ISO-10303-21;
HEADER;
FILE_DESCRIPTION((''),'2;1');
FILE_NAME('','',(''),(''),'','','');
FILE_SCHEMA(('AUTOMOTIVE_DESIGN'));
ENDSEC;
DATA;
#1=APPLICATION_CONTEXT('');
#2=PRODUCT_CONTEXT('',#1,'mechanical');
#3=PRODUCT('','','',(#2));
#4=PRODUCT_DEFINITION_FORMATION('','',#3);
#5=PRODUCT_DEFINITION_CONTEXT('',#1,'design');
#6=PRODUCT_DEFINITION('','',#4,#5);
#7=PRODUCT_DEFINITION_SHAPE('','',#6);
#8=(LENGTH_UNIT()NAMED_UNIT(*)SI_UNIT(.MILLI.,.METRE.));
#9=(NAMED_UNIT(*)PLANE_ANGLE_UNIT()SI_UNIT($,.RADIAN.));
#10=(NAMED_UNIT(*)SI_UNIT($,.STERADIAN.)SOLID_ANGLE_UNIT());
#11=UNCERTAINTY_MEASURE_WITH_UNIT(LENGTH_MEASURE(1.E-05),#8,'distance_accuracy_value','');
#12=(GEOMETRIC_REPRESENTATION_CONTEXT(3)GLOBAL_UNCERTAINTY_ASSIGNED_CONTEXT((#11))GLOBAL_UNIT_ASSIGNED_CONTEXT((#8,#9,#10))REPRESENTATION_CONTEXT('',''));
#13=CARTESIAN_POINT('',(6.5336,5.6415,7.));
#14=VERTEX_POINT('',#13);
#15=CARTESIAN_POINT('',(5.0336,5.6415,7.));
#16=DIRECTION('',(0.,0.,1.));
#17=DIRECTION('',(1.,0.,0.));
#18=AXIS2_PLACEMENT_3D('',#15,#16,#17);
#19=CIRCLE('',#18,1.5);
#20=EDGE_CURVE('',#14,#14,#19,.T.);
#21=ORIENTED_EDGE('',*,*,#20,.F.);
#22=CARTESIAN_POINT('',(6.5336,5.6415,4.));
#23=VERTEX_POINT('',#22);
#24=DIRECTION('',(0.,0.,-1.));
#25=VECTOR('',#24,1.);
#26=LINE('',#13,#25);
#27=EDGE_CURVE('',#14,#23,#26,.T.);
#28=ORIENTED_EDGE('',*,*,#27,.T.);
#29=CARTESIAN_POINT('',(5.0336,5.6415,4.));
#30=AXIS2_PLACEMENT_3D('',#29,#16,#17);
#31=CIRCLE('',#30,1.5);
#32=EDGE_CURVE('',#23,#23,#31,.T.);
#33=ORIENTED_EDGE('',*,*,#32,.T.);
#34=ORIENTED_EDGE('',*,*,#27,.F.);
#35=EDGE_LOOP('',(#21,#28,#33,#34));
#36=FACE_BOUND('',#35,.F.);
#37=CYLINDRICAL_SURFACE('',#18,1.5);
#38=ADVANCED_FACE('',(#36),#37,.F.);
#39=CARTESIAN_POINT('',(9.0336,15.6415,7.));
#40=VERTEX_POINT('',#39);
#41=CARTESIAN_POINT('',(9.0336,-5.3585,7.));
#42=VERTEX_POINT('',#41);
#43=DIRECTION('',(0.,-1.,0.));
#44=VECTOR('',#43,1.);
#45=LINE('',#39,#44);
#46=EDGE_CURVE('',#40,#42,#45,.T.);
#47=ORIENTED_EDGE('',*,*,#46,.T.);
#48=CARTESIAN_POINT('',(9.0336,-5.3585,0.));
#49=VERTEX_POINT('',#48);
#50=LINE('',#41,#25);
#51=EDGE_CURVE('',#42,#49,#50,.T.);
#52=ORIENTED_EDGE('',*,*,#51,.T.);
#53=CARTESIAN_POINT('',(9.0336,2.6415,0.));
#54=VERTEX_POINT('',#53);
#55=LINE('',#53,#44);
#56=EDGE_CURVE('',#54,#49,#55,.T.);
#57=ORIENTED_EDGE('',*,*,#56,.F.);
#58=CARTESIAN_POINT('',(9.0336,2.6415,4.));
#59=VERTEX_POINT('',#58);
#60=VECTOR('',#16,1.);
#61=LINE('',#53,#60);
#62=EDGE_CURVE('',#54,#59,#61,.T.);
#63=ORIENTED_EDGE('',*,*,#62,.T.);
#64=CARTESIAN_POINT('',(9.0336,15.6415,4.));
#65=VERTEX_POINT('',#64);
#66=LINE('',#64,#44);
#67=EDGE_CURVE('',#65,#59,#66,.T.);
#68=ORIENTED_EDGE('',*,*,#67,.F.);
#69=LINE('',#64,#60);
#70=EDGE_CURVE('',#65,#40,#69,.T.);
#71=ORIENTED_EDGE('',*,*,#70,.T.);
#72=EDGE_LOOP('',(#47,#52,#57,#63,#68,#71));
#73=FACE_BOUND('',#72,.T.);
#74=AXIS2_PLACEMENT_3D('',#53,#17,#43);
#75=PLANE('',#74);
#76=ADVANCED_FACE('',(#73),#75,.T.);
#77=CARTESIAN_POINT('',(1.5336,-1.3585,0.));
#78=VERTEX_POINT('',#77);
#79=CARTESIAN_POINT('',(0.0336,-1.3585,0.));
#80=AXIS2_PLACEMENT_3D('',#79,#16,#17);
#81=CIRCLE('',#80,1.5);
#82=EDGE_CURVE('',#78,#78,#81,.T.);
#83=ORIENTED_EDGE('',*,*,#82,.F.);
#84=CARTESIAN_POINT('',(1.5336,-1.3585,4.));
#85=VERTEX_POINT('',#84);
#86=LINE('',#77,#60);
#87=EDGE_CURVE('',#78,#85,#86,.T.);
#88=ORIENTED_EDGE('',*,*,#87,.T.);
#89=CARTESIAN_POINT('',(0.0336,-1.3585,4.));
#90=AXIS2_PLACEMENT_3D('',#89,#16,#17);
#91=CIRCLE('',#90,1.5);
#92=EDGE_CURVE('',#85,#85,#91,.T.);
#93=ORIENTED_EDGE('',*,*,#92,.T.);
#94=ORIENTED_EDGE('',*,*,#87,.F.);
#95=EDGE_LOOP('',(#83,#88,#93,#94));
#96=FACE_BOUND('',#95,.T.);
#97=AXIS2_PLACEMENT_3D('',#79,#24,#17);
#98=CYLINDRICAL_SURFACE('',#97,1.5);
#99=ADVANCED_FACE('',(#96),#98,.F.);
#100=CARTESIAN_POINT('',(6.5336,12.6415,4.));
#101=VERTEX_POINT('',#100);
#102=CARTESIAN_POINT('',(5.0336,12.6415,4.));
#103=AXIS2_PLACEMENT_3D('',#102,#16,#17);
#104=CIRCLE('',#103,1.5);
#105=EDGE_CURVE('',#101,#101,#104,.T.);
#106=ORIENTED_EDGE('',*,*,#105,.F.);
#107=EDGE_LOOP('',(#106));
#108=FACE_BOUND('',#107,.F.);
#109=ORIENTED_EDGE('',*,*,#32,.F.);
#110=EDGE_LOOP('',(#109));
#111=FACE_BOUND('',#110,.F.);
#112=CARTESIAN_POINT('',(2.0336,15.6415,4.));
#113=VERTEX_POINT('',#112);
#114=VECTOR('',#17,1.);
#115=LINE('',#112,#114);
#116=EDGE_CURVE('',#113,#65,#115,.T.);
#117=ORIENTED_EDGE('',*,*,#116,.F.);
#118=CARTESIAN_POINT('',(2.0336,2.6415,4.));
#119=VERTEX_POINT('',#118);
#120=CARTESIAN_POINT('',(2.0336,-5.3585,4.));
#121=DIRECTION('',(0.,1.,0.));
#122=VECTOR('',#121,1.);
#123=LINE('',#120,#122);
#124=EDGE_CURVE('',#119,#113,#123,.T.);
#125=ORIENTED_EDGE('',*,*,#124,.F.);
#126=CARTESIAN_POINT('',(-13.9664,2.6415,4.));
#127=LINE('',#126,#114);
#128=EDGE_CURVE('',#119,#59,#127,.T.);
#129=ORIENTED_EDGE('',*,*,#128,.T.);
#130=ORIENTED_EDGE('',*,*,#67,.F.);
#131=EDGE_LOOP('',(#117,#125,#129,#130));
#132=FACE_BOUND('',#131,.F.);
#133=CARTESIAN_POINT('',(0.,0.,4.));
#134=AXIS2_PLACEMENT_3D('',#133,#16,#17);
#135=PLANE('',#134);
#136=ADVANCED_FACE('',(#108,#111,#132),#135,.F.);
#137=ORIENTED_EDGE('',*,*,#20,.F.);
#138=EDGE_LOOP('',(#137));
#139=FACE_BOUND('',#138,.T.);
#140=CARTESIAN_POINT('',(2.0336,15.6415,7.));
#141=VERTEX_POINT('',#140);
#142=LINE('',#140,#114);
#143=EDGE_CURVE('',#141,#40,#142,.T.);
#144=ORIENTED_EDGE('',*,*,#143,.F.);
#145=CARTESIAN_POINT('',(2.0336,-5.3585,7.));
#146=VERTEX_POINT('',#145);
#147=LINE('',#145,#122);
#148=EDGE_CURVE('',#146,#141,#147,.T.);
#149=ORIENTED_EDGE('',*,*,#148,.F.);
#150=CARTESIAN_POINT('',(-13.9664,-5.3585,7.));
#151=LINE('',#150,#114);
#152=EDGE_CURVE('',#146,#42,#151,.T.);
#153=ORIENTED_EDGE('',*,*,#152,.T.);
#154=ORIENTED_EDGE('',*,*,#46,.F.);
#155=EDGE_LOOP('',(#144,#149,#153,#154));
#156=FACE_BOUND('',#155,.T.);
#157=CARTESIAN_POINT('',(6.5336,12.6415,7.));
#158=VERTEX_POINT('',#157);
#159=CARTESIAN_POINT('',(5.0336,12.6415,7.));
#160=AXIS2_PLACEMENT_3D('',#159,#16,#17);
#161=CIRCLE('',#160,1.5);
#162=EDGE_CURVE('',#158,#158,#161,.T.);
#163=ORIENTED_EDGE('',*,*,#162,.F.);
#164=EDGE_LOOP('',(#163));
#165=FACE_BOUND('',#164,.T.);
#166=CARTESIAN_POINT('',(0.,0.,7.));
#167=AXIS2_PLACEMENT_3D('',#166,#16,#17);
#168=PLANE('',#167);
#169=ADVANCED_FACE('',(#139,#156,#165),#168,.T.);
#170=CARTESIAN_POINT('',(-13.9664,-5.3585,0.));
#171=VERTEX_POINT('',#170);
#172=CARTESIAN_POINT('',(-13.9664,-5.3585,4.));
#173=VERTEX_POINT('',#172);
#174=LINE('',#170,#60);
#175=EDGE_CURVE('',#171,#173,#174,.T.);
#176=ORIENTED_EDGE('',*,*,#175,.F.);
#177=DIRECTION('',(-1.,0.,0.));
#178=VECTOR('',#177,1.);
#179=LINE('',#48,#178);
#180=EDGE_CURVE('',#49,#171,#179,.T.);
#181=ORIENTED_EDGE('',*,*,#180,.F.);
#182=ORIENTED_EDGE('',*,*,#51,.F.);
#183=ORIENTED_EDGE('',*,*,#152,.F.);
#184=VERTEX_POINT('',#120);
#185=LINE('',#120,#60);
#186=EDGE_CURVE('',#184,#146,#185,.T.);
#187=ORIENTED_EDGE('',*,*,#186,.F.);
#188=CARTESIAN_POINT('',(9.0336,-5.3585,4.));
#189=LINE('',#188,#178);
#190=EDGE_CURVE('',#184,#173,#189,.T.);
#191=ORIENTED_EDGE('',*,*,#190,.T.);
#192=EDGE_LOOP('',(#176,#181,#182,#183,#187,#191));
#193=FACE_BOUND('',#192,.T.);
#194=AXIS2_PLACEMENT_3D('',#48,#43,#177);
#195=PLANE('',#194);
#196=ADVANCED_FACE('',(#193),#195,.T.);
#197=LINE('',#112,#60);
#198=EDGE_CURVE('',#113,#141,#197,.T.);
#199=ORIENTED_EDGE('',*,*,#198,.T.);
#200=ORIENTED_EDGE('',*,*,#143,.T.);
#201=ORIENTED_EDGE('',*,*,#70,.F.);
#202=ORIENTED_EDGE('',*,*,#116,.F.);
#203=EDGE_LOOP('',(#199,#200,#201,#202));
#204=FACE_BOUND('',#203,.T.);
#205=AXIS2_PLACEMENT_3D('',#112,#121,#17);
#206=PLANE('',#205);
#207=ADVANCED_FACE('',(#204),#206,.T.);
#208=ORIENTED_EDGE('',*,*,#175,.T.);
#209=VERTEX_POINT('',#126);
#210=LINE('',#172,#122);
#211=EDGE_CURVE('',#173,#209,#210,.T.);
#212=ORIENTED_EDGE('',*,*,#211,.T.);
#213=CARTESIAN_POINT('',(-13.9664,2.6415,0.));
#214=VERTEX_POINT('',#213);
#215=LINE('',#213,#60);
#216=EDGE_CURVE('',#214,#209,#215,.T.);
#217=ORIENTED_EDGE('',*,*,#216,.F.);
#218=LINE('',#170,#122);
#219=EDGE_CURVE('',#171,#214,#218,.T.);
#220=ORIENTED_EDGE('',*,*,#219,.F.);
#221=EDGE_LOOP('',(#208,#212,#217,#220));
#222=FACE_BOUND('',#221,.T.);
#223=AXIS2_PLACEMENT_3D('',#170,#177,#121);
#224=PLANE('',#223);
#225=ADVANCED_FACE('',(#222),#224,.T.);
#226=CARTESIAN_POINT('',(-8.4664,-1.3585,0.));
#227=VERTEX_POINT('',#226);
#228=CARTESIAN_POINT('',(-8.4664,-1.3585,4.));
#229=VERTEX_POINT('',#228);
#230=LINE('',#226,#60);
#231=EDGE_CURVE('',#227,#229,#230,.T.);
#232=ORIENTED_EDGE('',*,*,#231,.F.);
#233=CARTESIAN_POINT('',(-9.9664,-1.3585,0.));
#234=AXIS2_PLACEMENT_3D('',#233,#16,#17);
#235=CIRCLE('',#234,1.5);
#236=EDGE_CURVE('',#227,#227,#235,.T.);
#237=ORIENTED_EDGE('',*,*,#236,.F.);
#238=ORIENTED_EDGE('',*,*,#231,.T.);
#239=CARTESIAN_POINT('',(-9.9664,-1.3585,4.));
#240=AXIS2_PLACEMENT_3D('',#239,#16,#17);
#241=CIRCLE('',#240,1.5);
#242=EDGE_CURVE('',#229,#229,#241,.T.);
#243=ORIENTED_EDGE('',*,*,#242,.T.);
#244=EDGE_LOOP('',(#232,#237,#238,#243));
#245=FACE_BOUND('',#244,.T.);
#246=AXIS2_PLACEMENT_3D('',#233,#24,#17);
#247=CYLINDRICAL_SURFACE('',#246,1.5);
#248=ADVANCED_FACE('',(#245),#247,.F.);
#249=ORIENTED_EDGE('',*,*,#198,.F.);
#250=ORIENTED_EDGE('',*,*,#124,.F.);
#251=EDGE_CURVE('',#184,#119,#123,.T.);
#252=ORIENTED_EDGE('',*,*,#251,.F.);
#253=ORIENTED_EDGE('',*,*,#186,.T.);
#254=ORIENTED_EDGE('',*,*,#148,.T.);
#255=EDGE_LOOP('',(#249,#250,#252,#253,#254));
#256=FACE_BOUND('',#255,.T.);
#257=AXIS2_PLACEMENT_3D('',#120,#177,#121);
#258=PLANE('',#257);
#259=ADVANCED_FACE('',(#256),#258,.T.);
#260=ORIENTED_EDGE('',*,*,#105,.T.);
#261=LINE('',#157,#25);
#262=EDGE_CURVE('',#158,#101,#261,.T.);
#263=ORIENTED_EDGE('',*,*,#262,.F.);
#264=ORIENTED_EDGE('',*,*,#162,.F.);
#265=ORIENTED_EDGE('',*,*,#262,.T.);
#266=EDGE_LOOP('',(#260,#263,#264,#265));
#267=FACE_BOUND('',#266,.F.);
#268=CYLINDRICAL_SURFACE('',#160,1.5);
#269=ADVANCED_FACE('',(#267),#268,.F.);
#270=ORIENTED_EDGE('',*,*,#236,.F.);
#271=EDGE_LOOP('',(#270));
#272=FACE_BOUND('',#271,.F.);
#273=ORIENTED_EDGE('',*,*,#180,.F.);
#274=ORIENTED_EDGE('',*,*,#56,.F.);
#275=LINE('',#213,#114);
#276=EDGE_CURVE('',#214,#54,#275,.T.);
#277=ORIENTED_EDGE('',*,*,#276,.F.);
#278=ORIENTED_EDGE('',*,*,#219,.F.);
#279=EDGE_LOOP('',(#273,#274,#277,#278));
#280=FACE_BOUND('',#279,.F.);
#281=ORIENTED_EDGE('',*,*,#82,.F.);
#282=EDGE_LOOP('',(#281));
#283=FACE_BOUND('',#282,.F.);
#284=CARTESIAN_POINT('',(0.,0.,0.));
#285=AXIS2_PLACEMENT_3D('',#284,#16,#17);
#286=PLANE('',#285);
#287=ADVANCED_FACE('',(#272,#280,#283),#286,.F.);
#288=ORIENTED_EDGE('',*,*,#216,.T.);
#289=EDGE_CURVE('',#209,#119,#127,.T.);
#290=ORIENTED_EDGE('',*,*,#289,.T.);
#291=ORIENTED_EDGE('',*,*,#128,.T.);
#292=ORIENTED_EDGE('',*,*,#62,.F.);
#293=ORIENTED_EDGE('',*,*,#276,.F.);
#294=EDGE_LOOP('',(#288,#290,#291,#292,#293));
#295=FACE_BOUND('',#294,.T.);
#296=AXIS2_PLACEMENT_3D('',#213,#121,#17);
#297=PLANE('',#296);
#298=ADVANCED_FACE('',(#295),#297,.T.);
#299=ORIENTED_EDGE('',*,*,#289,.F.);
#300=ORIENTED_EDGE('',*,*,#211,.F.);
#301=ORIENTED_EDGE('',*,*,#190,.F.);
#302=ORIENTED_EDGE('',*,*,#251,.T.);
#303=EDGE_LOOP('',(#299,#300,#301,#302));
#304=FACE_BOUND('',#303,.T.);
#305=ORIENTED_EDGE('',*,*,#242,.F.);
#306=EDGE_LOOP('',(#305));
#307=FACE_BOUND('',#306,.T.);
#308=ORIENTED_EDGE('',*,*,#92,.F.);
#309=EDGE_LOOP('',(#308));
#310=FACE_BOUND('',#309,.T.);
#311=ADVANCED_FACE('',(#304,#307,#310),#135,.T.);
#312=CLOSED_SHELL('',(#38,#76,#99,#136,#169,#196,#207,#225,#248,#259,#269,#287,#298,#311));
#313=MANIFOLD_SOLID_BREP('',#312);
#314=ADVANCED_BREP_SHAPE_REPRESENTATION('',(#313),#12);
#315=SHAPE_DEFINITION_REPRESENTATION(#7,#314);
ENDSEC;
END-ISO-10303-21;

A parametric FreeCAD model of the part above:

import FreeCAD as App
import Part
import Sketcher
from FreeCAD import Vector


def add_polygon(sketch, points):
    """Adds a closed chain of lines whose ends are joined by coincident constraints."""
    first, n = sketch.GeometryCount, len(points)
    for a, b in zip(points, points[1:] + points[:1]):
        sketch.addGeometry(Part.LineSegment(App.Vector(*a, 0), App.Vector(*b, 0)), False)
    for i in range(n):
        sketch.addConstraint(Sketcher.Constraint("Coincident", first + i, 2, first + (i + 1) % n, 1))

doc = App.newDocument("Part")
body = doc.addObject("PartDesign::Body", "Body")

sketch1 = doc.addObject("Sketcher::SketchObject", "Sketch")
body.addObject(sketch1)
sketch1.AttachmentSupport = (doc.XY_Plane, [""])
sketch1.MapMode = "FlatFace"
add_polygon(sketch1, [(9.0336, 2.6415), (-13.9664, 2.6415), (-13.9664, -5.3585), (9.0336, -5.3585)])
sketch1.addGeometry(Part.Circle(Vector(-9.9664, -1.3585, 0), Vector(0, 0, 1), 1.5), False)
sketch1.addGeometry(Part.Circle(Vector(0.0336, -1.3585, 0), Vector(0, 0, 1), 1.5), False)
sketch1.addConstraint([
    Sketcher.Constraint("Horizontal", 0),
    Sketcher.Constraint("Vertical", 1),
    Sketcher.Constraint("Horizontal", 2),
    Sketcher.Constraint("Vertical", 3),
    Sketcher.Constraint("Equal", 4, 5),
    Sketcher.Constraint("Horizontal", 4, 3, 5, 3),
    Sketcher.Constraint("Diameter", 4, 3.0),
    Sketcher.Constraint("DistanceX", 0, 2, 0, 1, 23.0),
    Sketcher.Constraint("DistanceY", 1, 2, 1, 1, 8.0),
    Sketcher.Constraint("DistanceX", 4, 3, 5, 3, 10.0),
    Sketcher.Constraint("DistanceX", 0, 2, 4, 3, 4.0),
    Sketcher.Constraint("DistanceY", 4, 3, 0, 2, 4.0),
    Sketcher.Constraint("DistanceX", 4, 3, -1, 1, 9.9664),
    Sketcher.Constraint("DistanceY", 4, 3, -1, 1, 1.3585),
])
pad1 = doc.addObject("PartDesign::Pad", "Pad")
body.addObject(pad1)
pad1.Profile = sketch1
pad1.Length = 4

sketch2 = doc.addObject("Sketcher::SketchObject", "Sketch001")
body.addObject(sketch2)
sketch2.AttachmentSupport = (doc.XY_Plane, [""])
sketch2.MapMode = "FlatFace"
sketch2.AttachmentOffset = App.Placement(Vector(0, 0, 4), App.Rotation())
add_polygon(sketch2, [(2.0336, 15.6415), (2.0336, -5.3585), (9.0336, -5.3585), (9.0336, 15.6415)])
sketch2.addConstraint([
    Sketcher.Constraint("Vertical", 0),
    Sketcher.Constraint("Horizontal", 1),
    Sketcher.Constraint("Vertical", 2),
    Sketcher.Constraint("Horizontal", 3),
    Sketcher.Constraint("DistanceX", 1, 1, 1, 2, 7.0),
    Sketcher.Constraint("DistanceY", 0, 2, 0, 1, 21.0),
    Sketcher.Constraint("DistanceX", -1, 1, 0, 2, 2.0336),
    Sketcher.Constraint("DistanceY", 0, 2, -1, 1, 5.3585),
])
pad2 = doc.addObject("PartDesign::Pad", "Pad001")
body.addObject(pad2)
pad2.Profile = sketch2
pad2.Length = 3

sketch3 = doc.addObject("Sketcher::SketchObject", "Sketch002")
body.addObject(sketch3)
sketch3.AttachmentSupport = (doc.XY_Plane, [""])
sketch3.MapMode = "FlatFace"
sketch3.AttachmentOffset = App.Placement(Vector(0, 0, 7), App.Rotation())
sketch3.addGeometry([
    Part.Circle(Vector(5.0336, 5.6415, 0), Vector(0, 0, 1), 1.5),
    Part.Circle(Vector(5.0336, 12.6415, 0), Vector(0, 0, 1), 1.5),
], False)
sketch3.addConstraint([
    Sketcher.Constraint("Equal", 0, 1),
    Sketcher.Constraint("Vertical", 0, 3, 1, 3),
    Sketcher.Constraint("Diameter", 0, 3.0),
    Sketcher.Constraint("DistanceY", 0, 3, 1, 3, 7.0),
    Sketcher.Constraint("DistanceX", -1, 1, 0, 3, 5.0336),
    Sketcher.Constraint("DistanceY", -1, 1, 0, 3, 5.6415),
])
pocket1 = doc.addObject("PartDesign::Pocket", "Pocket")
body.addObject(pocket1)
pocket1.Profile = sketch3
pocket1.Length = 3

doc.recompute()
